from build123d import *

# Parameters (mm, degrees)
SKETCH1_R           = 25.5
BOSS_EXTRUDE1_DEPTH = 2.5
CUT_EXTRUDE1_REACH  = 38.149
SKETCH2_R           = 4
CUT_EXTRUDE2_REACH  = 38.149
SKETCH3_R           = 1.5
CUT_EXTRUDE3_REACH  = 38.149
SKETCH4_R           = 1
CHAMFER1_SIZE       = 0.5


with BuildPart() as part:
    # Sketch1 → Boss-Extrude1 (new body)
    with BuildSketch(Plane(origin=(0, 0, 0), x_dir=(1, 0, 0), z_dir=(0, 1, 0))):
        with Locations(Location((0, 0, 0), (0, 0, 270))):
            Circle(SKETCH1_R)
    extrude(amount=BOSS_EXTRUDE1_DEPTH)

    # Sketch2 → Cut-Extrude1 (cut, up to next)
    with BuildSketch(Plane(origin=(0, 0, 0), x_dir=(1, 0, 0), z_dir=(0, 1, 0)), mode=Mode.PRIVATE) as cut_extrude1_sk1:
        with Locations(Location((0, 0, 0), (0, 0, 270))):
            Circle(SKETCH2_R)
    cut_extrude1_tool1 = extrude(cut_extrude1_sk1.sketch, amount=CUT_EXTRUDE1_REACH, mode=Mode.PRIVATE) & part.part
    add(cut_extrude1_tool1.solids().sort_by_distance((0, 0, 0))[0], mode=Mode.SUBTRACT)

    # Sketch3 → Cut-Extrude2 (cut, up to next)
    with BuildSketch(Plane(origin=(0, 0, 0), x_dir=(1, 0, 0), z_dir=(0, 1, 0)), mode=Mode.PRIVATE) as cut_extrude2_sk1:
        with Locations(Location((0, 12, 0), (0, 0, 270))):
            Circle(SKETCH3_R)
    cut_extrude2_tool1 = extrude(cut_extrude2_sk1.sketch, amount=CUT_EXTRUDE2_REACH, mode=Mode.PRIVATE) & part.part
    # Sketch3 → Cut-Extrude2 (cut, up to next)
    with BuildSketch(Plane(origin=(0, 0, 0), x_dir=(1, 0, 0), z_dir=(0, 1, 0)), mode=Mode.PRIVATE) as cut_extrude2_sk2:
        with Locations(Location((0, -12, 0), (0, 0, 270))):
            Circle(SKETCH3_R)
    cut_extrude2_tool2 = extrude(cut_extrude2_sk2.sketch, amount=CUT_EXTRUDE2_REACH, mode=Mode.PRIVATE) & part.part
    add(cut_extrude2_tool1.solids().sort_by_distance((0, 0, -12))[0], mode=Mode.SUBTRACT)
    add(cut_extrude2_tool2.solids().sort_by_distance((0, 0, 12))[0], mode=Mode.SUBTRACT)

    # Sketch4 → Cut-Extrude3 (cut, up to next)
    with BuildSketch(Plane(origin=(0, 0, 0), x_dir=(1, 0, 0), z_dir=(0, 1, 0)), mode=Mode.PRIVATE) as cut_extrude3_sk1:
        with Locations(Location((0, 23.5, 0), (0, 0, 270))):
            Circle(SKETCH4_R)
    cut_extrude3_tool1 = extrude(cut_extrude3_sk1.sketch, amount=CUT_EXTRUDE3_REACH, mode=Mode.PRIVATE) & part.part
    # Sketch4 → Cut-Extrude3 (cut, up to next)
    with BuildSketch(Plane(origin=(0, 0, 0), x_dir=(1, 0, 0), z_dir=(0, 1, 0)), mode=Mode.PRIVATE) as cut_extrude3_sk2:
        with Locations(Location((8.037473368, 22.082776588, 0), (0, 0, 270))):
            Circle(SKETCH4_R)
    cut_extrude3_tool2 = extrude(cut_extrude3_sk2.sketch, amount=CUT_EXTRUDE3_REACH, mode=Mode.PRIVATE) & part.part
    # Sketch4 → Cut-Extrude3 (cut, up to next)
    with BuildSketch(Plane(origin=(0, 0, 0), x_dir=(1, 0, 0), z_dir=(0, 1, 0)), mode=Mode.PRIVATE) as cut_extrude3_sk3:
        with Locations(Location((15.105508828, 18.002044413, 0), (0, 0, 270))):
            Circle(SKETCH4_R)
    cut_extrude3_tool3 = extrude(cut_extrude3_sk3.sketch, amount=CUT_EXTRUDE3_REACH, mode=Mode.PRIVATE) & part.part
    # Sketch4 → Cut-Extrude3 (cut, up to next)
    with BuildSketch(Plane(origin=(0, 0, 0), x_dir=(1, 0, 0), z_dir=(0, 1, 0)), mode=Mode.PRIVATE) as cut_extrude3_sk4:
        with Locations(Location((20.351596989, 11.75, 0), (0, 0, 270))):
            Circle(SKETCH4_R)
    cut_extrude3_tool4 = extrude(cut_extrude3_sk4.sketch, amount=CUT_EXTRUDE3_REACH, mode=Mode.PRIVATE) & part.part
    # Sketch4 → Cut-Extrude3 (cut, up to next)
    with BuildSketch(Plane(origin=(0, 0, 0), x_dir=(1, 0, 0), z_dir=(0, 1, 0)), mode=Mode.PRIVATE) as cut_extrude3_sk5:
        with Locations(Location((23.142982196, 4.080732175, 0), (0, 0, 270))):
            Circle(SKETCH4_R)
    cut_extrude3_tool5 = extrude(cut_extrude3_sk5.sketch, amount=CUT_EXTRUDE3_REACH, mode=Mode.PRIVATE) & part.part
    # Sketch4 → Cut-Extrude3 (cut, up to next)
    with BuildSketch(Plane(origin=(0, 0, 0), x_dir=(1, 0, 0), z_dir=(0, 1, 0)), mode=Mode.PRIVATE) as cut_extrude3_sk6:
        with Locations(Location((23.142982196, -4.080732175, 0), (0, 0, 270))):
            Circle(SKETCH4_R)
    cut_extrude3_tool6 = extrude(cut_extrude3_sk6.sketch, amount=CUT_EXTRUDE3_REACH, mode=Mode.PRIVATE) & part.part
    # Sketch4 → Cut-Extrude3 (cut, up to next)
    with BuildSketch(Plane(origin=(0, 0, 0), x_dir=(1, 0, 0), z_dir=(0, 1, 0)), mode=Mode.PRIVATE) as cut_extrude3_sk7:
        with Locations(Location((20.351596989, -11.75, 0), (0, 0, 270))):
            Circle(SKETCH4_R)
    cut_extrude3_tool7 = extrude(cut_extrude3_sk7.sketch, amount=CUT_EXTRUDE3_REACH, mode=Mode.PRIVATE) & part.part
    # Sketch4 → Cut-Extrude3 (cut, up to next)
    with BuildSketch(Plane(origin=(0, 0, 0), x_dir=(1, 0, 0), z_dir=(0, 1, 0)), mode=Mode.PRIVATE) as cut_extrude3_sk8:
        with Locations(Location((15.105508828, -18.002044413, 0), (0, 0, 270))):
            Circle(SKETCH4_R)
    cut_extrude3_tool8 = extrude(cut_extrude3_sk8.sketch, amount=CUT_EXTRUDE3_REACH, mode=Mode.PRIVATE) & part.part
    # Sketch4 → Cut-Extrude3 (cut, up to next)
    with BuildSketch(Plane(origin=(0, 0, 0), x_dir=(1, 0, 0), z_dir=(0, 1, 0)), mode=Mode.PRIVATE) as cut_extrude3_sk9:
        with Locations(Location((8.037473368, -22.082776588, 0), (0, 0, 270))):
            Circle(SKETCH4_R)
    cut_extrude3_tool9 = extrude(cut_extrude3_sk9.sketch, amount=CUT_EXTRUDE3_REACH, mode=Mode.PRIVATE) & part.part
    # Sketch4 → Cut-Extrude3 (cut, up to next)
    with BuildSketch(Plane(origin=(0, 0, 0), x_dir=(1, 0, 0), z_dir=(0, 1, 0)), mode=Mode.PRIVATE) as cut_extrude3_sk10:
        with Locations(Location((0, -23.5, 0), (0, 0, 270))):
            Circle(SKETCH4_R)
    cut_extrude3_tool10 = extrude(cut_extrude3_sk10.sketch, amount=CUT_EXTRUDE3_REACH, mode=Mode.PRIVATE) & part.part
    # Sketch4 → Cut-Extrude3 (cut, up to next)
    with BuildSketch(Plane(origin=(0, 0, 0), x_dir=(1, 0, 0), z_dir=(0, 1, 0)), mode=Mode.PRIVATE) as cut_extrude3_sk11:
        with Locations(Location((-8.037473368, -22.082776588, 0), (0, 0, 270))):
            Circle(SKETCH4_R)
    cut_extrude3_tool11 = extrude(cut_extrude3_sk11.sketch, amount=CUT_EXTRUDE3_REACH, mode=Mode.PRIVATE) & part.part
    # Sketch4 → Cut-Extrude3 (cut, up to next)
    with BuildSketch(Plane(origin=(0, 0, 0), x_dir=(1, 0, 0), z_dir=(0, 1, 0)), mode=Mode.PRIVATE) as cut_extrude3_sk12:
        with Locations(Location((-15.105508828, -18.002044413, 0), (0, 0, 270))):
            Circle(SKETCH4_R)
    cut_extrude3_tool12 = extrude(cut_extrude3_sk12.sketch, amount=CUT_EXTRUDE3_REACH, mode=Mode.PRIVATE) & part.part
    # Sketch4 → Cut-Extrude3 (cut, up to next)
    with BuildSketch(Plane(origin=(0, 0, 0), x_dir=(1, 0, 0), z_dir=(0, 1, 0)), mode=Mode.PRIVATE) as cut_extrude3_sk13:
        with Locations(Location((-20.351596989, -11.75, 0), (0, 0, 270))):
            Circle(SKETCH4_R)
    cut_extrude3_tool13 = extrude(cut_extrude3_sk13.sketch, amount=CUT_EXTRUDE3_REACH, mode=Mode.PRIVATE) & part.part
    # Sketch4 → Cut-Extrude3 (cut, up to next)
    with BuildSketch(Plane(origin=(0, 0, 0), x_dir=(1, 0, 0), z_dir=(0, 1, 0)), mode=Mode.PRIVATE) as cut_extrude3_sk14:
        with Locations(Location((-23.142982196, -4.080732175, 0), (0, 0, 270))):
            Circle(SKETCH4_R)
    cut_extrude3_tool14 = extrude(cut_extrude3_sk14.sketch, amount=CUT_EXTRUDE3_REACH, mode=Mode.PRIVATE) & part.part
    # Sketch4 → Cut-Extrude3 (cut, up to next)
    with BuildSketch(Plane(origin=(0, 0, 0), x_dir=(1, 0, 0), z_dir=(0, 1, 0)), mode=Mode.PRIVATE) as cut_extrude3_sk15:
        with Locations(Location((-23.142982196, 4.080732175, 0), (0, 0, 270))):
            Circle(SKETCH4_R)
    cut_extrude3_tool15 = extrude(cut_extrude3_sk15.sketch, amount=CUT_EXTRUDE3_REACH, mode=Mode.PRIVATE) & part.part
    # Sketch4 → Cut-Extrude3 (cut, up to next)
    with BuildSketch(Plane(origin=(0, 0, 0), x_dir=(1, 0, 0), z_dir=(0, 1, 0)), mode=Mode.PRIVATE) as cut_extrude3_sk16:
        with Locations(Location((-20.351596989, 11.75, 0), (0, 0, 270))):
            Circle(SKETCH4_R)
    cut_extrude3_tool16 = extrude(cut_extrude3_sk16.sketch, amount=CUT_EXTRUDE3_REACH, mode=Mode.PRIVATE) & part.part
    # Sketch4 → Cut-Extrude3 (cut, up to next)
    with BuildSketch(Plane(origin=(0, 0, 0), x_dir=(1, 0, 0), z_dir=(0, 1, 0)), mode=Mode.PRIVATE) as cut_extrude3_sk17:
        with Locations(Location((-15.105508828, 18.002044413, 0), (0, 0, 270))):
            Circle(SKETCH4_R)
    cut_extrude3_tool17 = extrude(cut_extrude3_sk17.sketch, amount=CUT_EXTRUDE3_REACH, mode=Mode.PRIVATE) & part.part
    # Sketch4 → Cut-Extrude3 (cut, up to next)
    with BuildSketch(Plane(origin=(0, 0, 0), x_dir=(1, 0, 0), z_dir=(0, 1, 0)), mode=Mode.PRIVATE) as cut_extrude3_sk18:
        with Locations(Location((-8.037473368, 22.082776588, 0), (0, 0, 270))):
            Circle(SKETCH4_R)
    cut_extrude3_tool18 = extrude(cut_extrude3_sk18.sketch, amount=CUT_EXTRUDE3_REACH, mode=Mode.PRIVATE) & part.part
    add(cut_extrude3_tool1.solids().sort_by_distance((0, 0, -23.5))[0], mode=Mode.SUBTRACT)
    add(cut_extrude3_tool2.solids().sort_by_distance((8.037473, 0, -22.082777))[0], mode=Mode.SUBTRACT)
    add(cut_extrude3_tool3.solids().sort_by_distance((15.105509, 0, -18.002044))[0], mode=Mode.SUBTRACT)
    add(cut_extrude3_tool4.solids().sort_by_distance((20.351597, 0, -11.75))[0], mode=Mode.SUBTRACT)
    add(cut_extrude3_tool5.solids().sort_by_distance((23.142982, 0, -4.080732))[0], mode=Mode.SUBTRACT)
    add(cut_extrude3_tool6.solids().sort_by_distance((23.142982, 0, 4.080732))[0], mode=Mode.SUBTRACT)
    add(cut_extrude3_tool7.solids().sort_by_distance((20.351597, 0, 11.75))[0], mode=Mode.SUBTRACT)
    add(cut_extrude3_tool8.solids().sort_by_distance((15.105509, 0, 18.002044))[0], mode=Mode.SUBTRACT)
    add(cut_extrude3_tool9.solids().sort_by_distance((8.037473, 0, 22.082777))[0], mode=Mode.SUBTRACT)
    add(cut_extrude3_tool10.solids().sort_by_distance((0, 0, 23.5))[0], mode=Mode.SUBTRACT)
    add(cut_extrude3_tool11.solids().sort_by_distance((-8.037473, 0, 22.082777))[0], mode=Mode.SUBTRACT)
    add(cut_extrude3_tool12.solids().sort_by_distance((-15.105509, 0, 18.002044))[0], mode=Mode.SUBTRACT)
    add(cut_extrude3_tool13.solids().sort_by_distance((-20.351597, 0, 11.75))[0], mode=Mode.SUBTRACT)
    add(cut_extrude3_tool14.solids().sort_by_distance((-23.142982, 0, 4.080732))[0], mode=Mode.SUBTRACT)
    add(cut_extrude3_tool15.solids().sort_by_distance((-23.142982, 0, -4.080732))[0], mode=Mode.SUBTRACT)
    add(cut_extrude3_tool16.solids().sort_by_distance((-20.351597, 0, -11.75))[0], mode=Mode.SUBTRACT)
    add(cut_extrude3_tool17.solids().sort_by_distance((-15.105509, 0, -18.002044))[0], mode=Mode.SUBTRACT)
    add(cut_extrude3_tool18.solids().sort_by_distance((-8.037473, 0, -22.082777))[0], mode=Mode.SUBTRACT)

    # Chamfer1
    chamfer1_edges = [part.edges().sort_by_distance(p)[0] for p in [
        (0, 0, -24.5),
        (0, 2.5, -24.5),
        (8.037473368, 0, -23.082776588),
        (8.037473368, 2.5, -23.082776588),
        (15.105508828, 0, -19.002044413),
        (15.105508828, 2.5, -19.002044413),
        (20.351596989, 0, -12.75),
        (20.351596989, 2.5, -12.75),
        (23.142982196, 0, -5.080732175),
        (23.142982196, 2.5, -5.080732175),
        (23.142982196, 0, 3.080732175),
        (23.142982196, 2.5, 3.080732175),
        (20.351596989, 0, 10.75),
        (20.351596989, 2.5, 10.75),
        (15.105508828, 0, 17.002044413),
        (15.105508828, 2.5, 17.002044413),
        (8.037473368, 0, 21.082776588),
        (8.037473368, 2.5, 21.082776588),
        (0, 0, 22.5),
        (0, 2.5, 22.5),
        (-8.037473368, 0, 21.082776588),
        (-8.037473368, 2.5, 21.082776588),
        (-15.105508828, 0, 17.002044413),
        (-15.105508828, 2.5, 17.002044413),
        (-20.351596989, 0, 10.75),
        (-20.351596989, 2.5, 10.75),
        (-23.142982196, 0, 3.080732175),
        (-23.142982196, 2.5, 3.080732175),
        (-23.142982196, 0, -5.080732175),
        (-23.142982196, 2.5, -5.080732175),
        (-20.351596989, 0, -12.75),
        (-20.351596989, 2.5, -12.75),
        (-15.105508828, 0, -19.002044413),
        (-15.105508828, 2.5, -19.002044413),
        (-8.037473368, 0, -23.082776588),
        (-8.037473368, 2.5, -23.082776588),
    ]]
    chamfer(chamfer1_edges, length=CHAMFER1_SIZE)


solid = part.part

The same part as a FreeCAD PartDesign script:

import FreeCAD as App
import Part
import Sketcher
from FreeCAD import Vector


def edges_at(feature, points):
    """Names of the edges that pass closest to the given points."""
    edges = feature.Shape.Edges
    near = lambda p: min(range(len(edges)), key=lambda i: edges[i].distToShape(Part.Vertex(*p))[0])
    return sorted({f"Edge{near(p) + 1}" for p in points})

doc = App.newDocument("Part")
body = doc.addObject("PartDesign::Body", "Body")

# Sketch on XZ plane
sketch1 = body.newObject("Sketcher::SketchObject", "Sketch")
sketch1.AttachmentSupport = (doc.getObject("XZ_Plane"), [""])
sketch1.MapMode = "FlatFace"
sketch1.addGeometry(Part.Circle(Vector(0, 0, 0), Vector(0, 0, 1), 26), False)
sketch1.addConstraint([
    Sketcher.Constraint("Coincident", 0, 3, -1, 1),
    Sketcher.Constraint("Diameter", 0, 51.0),
])
pad1 = body.newObject("PartDesign::Pad", "Pad")
pad1.Profile = sketch1
pad1.Length = 2.5
pad1.Reversed = True

# Sketch on XZ plane
sketch2 = body.newObject("Sketcher::SketchObject", "Sketch001")
sketch2.AttachmentSupport = (doc.getObject("XZ_Plane"), [""])
sketch2.MapMode = "FlatFace"
sketch2.addGeometry(Part.Circle(Vector(0, 0, 0), Vector(0, 0, 1), 4), False)
sketch2.addConstraint([
    Sketcher.Constraint("Coincident", 0, 3, -1, 1),
    Sketcher.Constraint("Diameter", 0, 8.0),
])
pocket1 = body.newObject("PartDesign::Pocket", "Pocket")
pocket1.Profile = sketch2
pocket1.Type = "UpToFirst"

# Sketch on XZ plane
sketch3 = body.newObject("Sketcher::SketchObject", "Sketch002")
sketch3.AttachmentSupport = (doc.getObject("XZ_Plane"), [""])
sketch3.MapMode = "FlatFace"
sketch3.addGeometry(Part.Circle(Vector(0, -12, 0), Vector(0, 0, 1), 1.5), False)
sketch3.addConstraint([
    Sketcher.Constraint("PointOnObject", 0, 3, -2),
    Sketcher.Constraint("Diameter", 0, 3.0),
    Sketcher.Constraint("DistanceY", 0, 3, -1, 1, 12.0),
])
pocket2 = body.newObject("PartDesign::Pocket", "Pocket001")
pocket2.Profile = sketch3
pocket2.Type = "UpToFirst"

# Sketch on XZ plane
sketch4 = body.newObject("Sketcher::SketchObject", "Sketch003")
sketch4.AttachmentSupport = (doc.getObject("XZ_Plane"), [""])
sketch4.MapMode = "FlatFace"
sketch4.addGeometry(Part.Circle(Vector(0, 12, 0), Vector(0, 0, 1), 1.5), False)
sketch4.addConstraint([
    Sketcher.Constraint("PointOnObject", 0, 3, -2),
    Sketcher.Constraint("Diameter", 0, 3.0),
    Sketcher.Constraint("DistanceY", -1, 1, 0, 3, 12.0),
])
pocket3 = body.newObject("PartDesign::Pocket", "Pocket002")
pocket3.Profile = sketch4
pocket3.Type = "UpToFirst"

# Sketch on XZ plane
sketch5 = body.newObject("Sketcher::SketchObject", "Sketch004")
sketch5.AttachmentSupport = (doc.getObject("XZ_Plane"), [""])
sketch5.MapMode = "FlatFace"
sketch5.addGeometry(Part.Circle(Vector(0, -23.5, 0), Vector(0, 0, 1), 1), False)
sketch5.addConstraint([
    Sketcher.Constraint("PointOnObject", 0, 3, -2),
    Sketcher.Constraint("Diameter", 0, 2.0),
    Sketcher.Constraint("DistanceY", 0, 3, -1, 1, 23.5),
])
pocket4 = body.newObject("PartDesign::Pocket", "Pocket003")
pocket4.Profile = sketch5
pocket4.Type = "UpToFirst"

# Sketch on XZ plane
sketch6 = body.newObject("Sketcher::SketchObject", "Sketch005")
sketch6.AttachmentSupport = (doc.getObject("XZ_Plane"), [""])
sketch6.MapMode = "FlatFace"
sketch6.addGeometry(Part.Circle(Vector(8, -22.1, 0), Vector(0, 0, 1), 1), False)
sketch6.addConstraint([
    Sketcher.Constraint("Diameter", 0, 2.0),
    Sketcher.Constraint("DistanceX", -1, 1, 0, 3, 8.037473),
    Sketcher.Constraint("DistanceY", 0, 3, -1, 1, 22.082777),
])
pocket5 = body.newObject("PartDesign::Pocket", "Pocket004")
pocket5.Profile = sketch6
pocket5.Type = "UpToFirst"

# Sketch on XZ plane
sketch7 = body.newObject("Sketcher::SketchObject", "Sketch006")
sketch7.AttachmentSupport = (doc.getObject("XZ_Plane"), [""])
sketch7.MapMode = "FlatFace"
sketch7.addGeometry(Part.Circle(Vector(15.1, -18, 0), Vector(0, 0, 1), 1), False)
sketch7.addConstraint([
    Sketcher.Constraint("Diameter", 0, 2.0),
    Sketcher.Constraint("DistanceX", -1, 1, 0, 3, 15.105509),
    Sketcher.Constraint("DistanceY", 0, 3, -1, 1, 18.002044),
])
pocket6 = body.newObject("PartDesign::Pocket", "Pocket005")
pocket6.Profile = sketch7
pocket6.Type = "UpToFirst"

# Sketch on XZ plane
sketch8 = body.newObject("Sketcher::SketchObject", "Sketch007")
sketch8.AttachmentSupport = (doc.getObject("XZ_Plane"), [""])
sketch8.MapMode = "FlatFace"
sketch8.addGeometry(Part.Circle(Vector(20.4, -11.8, 0), Vector(0, 0, 1), 1), False)
sketch8.addConstraint([
    Sketcher.Constraint("Diameter", 0, 2.0),
    Sketcher.Constraint("DistanceY", 0, 3, -1, 1, 11.75),
    Sketcher.Constraint("DistanceX", -1, 1, 0, 3, 20.351597),
])
pocket7 = body.newObject("PartDesign::Pocket", "Pocket006")
pocket7.Profile = sketch8
pocket7.Type = "UpToFirst"

# Sketch on XZ plane
sketch9 = body.newObject("Sketcher::SketchObject", "Sketch008")
sketch9.AttachmentSupport = (doc.getObject("XZ_Plane"), [""])
sketch9.MapMode = "FlatFace"
sketch9.addGeometry(Part.Circle(Vector(23.1, -4.1, 0), Vector(0, 0, 1), 1), False)
sketch9.addConstraint([
    Sketcher.Constraint("Diameter", 0, 2.0),
    Sketcher.Constraint("DistanceX", -1, 1, 0, 3, 23.142982),
    Sketcher.Constraint("DistanceY", 0, 3, -1, 1, 4.080732),
])
pocket8 = body.newObject("PartDesign::Pocket", "Pocket007")
pocket8.Profile = sketch9
pocket8.Type = "UpToFirst"

# Sketch on XZ plane
sketch10 = body.newObject("Sketcher::SketchObject", "Sketch009")
sketch10.AttachmentSupport = (doc.getObject("XZ_Plane"), [""])
sketch10.MapMode = "FlatFace"
sketch10.addGeometry(Part.Circle(Vector(23.1, 4.1, 0), Vector(0, 0, 1), 1), False)
sketch10.addConstraint([
    Sketcher.Constraint("Diameter", 0, 2.0),
    Sketcher.Constraint("DistanceX", -1, 1, 0, 3, 23.142982),
    Sketcher.Constraint("DistanceY", -1, 1, 0, 3, 4.080732),
])
pocket9 = body.newObject("PartDesign::Pocket", "Pocket008")
pocket9.Profile = sketch10
pocket9.Type = "UpToFirst"

# Sketch on XZ plane
sketch11 = body.newObject("Sketcher::SketchObject", "Sketch010")
sketch11.AttachmentSupport = (doc.getObject("XZ_Plane"), [""])
sketch11.MapMode = "FlatFace"
sketch11.addGeometry(Part.Circle(Vector(20.4, 11.8, 0), Vector(0, 0, 1), 1), False)
sketch11.addConstraint([
    Sketcher.Constraint("Diameter", 0, 2.0),
    Sketcher.Constraint("DistanceY", -1, 1, 0, 3, 11.75),
    Sketcher.Constraint("DistanceX", -1, 1, 0, 3, 20.351597),
])
pocket10 = body.newObject("PartDesign::Pocket", "Pocket009")
pocket10.Profile = sketch11
pocket10.Type = "UpToFirst"

# Sketch on XZ plane
sketch12 = body.newObject("Sketcher::SketchObject", "Sketch011")
sketch12.AttachmentSupport = (doc.getObject("XZ_Plane"), [""])
sketch12.MapMode = "FlatFace"
sketch12.addGeometry(Part.Circle(Vector(15.1, 18, 0), Vector(0, 0, 1), 1), False)
sketch12.addConstraint([
    Sketcher.Constraint("Diameter", 0, 2.0),
    Sketcher.Constraint("DistanceX", -1, 1, 0, 3, 15.105509),
    Sketcher.Constraint("DistanceY", -1, 1, 0, 3, 18.002044),
])
pocket11 = body.newObject("PartDesign::Pocket", "Pocket010")
pocket11.Profile = sketch12
pocket11.Type = "UpToFirst"

# Sketch on XZ plane
sketch13 = body.newObject("Sketcher::SketchObject", "Sketch012")
sketch13.AttachmentSupport = (doc.getObject("XZ_Plane"), [""])
sketch13.MapMode = "FlatFace"
sketch13.addGeometry(Part.Circle(Vector(8, 22.1, 0), Vector(0, 0, 1), 1), False)
sketch13.addConstraint([
    Sketcher.Constraint("Diameter", 0, 2.0),
    Sketcher.Constraint("DistanceX", -1, 1, 0, 3, 8.037473),
    Sketcher.Constraint("DistanceY", -1, 1, 0, 3, 22.082777),
])
pocket12 = body.newObject("PartDesign::Pocket", "Pocket011")
pocket12.Profile = sketch13
pocket12.Type = "UpToFirst"

# Sketch on XZ plane
sketch14 = body.newObject("Sketcher::SketchObject", "Sketch013")
sketch14.AttachmentSupport = (doc.getObject("XZ_Plane"), [""])
sketch14.MapMode = "FlatFace"
sketch14.addGeometry(Part.Circle(Vector(0, 23.5, 0), Vector(0, 0, 1), 1), False)
sketch14.addConstraint([
    Sketcher.Constraint("PointOnObject", 0, 3, -2),
    Sketcher.Constraint("Diameter", 0, 2.0),
    Sketcher.Constraint("DistanceY", -1, 1, 0, 3, 23.5),
])
pocket13 = body.newObject("PartDesign::Pocket", "Pocket012")
pocket13.Profile = sketch14
pocket13.Type = "UpToFirst"

# Sketch on XZ plane
sketch15 = body.newObject("Sketcher::SketchObject", "Sketch014")
sketch15.AttachmentSupport = (doc.getObject("XZ_Plane"), [""])
sketch15.MapMode = "FlatFace"
sketch15.addGeometry(Part.Circle(Vector(-8, 22.1, 0), Vector(0, 0, 1), 1), False)
sketch15.addConstraint([
    Sketcher.Constraint("Diameter", 0, 2.0),
    Sketcher.Constraint("DistanceX", 0, 3, -1, 1, 8.037473),
    Sketcher.Constraint("DistanceY", -1, 1, 0, 3, 22.082777),
])
pocket14 = body.newObject("PartDesign::Pocket", "Pocket013")
pocket14.Profile = sketch15
pocket14.Type = "UpToFirst"

# Sketch on XZ plane
sketch16 = body.newObject("Sketcher::SketchObject", "Sketch015")
sketch16.AttachmentSupport = (doc.getObject("XZ_Plane"), [""])
sketch16.MapMode = "FlatFace"
sketch16.addGeometry(Part.Circle(Vector(-15.1, 18, 0), Vector(0, 0, 1), 1), False)
sketch16.addConstraint([
    Sketcher.Constraint("Diameter", 0, 2.0),
    Sketcher.Constraint("DistanceX", 0, 3, -1, 1, 15.105509),
    Sketcher.Constraint("DistanceY", -1, 1, 0, 3, 18.002044),
])
pocket15 = body.newObject("PartDesign::Pocket", "Pocket014")
pocket15.Profile = sketch16
pocket15.Type = "UpToFirst"

# Sketch on XZ plane
sketch17 = body.newObject("Sketcher::SketchObject", "Sketch016")
sketch17.AttachmentSupport = (doc.getObject("XZ_Plane"), [""])
sketch17.MapMode = "FlatFace"
sketch17.addGeometry(Part.Circle(Vector(-20.4, 11.8, 0), Vector(0, 0, 1), 1), False)
sketch17.addConstraint([
    Sketcher.Constraint("Diameter", 0, 2.0),
    Sketcher.Constraint("DistanceY", -1, 1, 0, 3, 11.75),
    Sketcher.Constraint("DistanceX", 0, 3, -1, 1, 20.351597),
])
pocket16 = body.newObject("PartDesign::Pocket", "Pocket015")
pocket16.Profile = sketch17
pocket16.Type = "UpToFirst"

# Sketch on XZ plane
sketch18 = body.newObject("Sketcher::SketchObject", "Sketch017")
sketch18.AttachmentSupport = (doc.getObject("XZ_Plane"), [""])
sketch18.MapMode = "FlatFace"
sketch18.addGeometry(Part.Circle(Vector(-23.1, 4.1, 0), Vector(0, 0, 1), 1), False)
sketch18.addConstraint([
    Sketcher.Constraint("Diameter", 0, 2.0),
    Sketcher.Constraint("DistanceX", 0, 3, -1, 1, 23.142982),
    Sketcher.Constraint("DistanceY", -1, 1, 0, 3, 4.080732),
])
pocket17 = body.newObject("PartDesign::Pocket", "Pocket016")
pocket17.Profile = sketch18
pocket17.Type = "UpToFirst"

# Sketch on XZ plane
sketch19 = body.newObject("Sketcher::SketchObject", "Sketch018")
sketch19.AttachmentSupport = (doc.getObject("XZ_Plane"), [""])
sketch19.MapMode = "FlatFace"
sketch19.addGeometry(Part.Circle(Vector(-23.1, -4.1, 0), Vector(0, 0, 1), 1), False)
sketch19.addConstraint([
    Sketcher.Constraint("Diameter", 0, 2.0),
    Sketcher.Constraint("DistanceX", 0, 3, -1, 1, 23.142982),
    Sketcher.Constraint("DistanceY", 0, 3, -1, 1, 4.080732),
])
pocket18 = body.newObject("PartDesign::Pocket", "Pocket017")
pocket18.Profile = sketch19
pocket18.Type = "UpToFirst"

# Sketch on XZ plane
sketch20 = body.newObject("Sketcher::SketchObject", "Sketch019")
sketch20.AttachmentSupport = (doc.getObject("XZ_Plane"), [""])
sketch20.MapMode = "FlatFace"
sketch20.addGeometry(Part.Circle(Vector(-20.4, -11.8, 0), Vector(0, 0, 1), 1), False)
sketch20.addConstraint([
    Sketcher.Constraint("Diameter", 0, 2.0),
    Sketcher.Constraint("DistanceY", 0, 3, -1, 1, 11.75),
    Sketcher.Constraint("DistanceX", 0, 3, -1, 1, 20.351597),
])
pocket19 = body.newObject("PartDesign::Pocket", "Pocket018")
pocket19.Profile = sketch20
pocket19.Type = "UpToFirst"

# Sketch on XZ plane
sketch21 = body.newObject("Sketcher::SketchObject", "Sketch020")
sketch21.AttachmentSupport = (doc.getObject("XZ_Plane"), [""])
sketch21.MapMode = "FlatFace"
sketch21.addGeometry(Part.Circle(Vector(-15.1, -18, 0), Vector(0, 0, 1), 1), False)
sketch21.addConstraint([
    Sketcher.Constraint("Diameter", 0, 2.0),
    Sketcher.Constraint("DistanceX", 0, 3, -1, 1, 15.105509),
    Sketcher.Constraint("DistanceY", 0, 3, -1, 1, 18.002044),
])
pocket20 = body.newObject("PartDesign::Pocket", "Pocket019")
pocket20.Profile = sketch21
pocket20.Type = "UpToFirst"

# Sketch on XZ plane
sketch22 = body.newObject("Sketcher::SketchObject", "Sketch021")
sketch22.AttachmentSupport = (doc.getObject("XZ_Plane"), [""])
sketch22.MapMode = "FlatFace"
sketch22.addGeometry(Part.Circle(Vector(-8, -22.1, 0), Vector(0, 0, 1), 1), False)
sketch22.addConstraint([
    Sketcher.Constraint("Diameter", 0, 2.0),
    Sketcher.Constraint("DistanceX", 0, 3, -1, 1, 8.037473),
    Sketcher.Constraint("DistanceY", 0, 3, -1, 1, 22.082777),
])
pocket21 = body.newObject("PartDesign::Pocket", "Pocket020")
pocket21.Profile = sketch22
pocket21.Type = "UpToFirst"
doc.recompute()

chamfer = body.newObject("PartDesign::Chamfer", "Chamfer")
chamfer.Base = (pocket21, edges_at(pocket21, [
    (0, 0, -24.5),
    (0, 2.5, -24.5),
    (8.037, 0, -23.083),
    (8.037, 2.5, -23.083),
    (15.106, 0, -19.002),
    (15.106, 2.5, -19.002),
    (20.352, 0, -12.75),
    (20.352, 2.5, -12.75),
    (23.143, 0, -5.081),
    (23.143, 2.5, -5.081),
    (23.143, 0, 3.081),
    (23.143, 2.5, 3.081),
    (20.352, 0, 10.75),
    (20.352, 2.5, 10.75),
    (15.106, 0, 17.002),
    (15.106, 2.5, 17.002),
    (8.037, 0, 21.083),
    (8.037, 2.5, 21.083),
    (0, 0, 22.5),
    (0, 2.5, 22.5),
    (-8.037, 0, 21.083),
    (-8.037, 2.5, 21.083),
    (-15.106, 0, 17.002),
    (-15.106, 2.5, 17.002),
    (-20.352, 0, 10.75),
    (-20.352, 2.5, 10.75),
    (-23.143, 0, 3.081),
    (-23.143, 2.5, 3.081),
    (-23.143, 0, -5.081),
    (-23.143, 2.5, -5.081),
    (-20.352, 0, -12.75),
    (-20.352, 2.5, -12.75),
    (-15.106, 0, -19.002),
    (-15.106, 2.5, -19.002),
    (-8.037, 0, -23.083),
    (-8.037, 2.5, -23.083),
]))
chamfer.Size = 0.5

doc.recompute()
